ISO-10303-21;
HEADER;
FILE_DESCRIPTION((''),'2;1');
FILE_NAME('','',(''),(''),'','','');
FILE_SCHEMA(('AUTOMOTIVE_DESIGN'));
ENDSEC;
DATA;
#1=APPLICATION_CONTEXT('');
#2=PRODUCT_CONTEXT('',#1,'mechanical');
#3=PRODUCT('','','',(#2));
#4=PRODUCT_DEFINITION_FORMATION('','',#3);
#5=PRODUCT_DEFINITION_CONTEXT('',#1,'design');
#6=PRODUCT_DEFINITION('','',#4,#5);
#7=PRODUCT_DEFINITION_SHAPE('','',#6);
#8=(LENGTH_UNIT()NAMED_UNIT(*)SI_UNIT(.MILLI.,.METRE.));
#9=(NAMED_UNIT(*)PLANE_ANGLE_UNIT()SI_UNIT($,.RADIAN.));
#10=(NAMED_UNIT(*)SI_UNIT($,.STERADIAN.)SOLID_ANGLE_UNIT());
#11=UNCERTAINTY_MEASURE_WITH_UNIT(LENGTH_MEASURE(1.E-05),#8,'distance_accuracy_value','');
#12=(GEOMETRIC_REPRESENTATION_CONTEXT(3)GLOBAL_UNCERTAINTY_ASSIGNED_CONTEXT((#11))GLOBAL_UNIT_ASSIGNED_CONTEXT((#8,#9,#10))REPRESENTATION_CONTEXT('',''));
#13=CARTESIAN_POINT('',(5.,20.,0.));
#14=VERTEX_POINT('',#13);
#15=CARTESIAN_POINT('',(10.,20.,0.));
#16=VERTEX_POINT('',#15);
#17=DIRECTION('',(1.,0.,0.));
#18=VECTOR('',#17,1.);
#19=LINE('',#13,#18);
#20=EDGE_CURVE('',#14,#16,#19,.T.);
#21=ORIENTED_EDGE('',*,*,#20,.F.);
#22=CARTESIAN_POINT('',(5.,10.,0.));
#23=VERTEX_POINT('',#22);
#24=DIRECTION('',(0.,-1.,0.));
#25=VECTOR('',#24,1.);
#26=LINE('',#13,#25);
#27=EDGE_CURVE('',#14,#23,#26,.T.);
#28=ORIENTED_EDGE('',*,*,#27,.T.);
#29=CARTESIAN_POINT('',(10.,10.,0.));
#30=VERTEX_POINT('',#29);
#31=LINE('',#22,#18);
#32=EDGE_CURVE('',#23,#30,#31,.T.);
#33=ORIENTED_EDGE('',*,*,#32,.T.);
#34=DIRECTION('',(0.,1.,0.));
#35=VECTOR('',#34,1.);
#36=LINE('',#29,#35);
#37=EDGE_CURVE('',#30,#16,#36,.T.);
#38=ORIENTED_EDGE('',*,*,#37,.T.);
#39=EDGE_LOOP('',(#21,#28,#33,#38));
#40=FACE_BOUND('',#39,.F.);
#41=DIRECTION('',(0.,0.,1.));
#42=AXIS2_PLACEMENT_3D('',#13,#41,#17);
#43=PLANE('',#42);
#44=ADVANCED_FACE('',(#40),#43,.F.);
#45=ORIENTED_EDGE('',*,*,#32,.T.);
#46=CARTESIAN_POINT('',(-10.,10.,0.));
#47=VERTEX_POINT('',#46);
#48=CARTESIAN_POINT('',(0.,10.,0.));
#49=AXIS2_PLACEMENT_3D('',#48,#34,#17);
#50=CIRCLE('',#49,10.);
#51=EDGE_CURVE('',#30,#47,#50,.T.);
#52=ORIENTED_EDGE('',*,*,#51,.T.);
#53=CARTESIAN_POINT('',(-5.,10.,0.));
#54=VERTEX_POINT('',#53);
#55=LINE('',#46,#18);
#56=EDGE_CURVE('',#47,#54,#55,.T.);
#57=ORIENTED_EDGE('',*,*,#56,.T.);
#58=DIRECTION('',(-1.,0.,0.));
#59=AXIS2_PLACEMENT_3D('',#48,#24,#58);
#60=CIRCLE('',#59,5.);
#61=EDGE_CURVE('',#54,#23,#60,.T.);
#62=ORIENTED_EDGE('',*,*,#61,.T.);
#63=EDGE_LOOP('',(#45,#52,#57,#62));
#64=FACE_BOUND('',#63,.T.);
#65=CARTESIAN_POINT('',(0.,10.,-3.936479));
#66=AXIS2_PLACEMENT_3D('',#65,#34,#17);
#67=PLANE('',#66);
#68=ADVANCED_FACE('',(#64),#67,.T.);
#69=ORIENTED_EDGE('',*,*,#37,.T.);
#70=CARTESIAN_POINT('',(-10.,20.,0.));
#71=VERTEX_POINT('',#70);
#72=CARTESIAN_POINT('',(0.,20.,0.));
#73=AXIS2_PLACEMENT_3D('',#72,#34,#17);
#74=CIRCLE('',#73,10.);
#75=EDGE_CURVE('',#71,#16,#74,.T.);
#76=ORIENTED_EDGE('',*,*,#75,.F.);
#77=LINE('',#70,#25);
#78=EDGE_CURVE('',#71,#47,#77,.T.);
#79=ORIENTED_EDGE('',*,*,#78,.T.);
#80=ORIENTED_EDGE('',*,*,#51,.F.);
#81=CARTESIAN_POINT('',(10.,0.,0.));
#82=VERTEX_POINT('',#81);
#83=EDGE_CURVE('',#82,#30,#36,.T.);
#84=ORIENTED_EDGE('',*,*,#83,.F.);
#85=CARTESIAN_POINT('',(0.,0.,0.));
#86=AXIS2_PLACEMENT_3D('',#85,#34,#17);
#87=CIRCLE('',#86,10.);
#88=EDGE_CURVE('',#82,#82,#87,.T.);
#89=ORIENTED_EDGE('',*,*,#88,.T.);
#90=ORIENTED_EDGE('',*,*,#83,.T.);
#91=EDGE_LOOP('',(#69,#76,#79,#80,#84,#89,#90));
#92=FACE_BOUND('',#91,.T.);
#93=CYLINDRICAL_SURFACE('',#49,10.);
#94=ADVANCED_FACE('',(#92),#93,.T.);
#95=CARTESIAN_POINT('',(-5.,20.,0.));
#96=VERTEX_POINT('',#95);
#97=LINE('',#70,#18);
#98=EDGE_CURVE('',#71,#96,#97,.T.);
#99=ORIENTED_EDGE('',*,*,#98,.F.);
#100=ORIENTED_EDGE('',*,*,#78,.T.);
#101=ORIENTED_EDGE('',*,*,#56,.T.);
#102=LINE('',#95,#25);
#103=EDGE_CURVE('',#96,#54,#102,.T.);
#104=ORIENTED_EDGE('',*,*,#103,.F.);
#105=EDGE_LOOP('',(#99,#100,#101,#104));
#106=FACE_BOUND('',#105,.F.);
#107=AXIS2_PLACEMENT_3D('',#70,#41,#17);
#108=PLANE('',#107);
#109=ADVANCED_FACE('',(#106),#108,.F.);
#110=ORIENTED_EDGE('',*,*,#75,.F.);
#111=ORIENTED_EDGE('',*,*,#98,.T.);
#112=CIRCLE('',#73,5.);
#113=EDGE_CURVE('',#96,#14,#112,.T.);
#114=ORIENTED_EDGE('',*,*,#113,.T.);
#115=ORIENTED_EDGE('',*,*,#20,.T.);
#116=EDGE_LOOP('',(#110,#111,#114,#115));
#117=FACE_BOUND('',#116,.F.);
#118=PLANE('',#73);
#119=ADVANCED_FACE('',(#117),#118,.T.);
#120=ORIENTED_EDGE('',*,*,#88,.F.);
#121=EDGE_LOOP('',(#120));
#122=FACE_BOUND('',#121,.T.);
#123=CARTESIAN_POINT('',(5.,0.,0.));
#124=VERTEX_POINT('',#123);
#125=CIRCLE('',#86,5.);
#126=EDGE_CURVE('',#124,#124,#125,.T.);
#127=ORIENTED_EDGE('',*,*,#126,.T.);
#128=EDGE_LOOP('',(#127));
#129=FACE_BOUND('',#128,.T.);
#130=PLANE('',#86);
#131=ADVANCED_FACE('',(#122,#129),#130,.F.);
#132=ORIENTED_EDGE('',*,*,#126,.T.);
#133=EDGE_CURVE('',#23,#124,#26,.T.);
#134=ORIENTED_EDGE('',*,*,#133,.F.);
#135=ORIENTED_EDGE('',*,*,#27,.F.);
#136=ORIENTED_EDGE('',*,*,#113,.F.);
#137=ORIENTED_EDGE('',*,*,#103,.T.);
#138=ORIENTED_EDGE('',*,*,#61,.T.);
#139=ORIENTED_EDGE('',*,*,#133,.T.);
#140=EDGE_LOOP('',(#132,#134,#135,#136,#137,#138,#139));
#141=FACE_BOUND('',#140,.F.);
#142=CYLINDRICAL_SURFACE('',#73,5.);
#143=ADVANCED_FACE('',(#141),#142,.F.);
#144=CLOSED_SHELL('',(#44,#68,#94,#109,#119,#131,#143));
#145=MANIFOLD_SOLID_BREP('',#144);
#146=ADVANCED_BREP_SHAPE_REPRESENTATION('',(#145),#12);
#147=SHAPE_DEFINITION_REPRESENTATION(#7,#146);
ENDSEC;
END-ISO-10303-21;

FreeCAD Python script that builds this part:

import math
import FreeCAD as App
import Part
import Sketcher
from FreeCAD import Vector

doc = App.newDocument("Part")
body = doc.addObject("PartDesign::Body", "Body")

# Sketch on XY plane
sketch1 = body.newObject("Sketcher::SketchObject", "Sketch")
sketch1.AttachmentSupport = (doc.getObject("XY_Plane"), [""])
sketch1.MapMode = "FlatFace"
sketch1.addGeometry([
    Part.LineSegment(Vector(0, 20, 0), Vector(0, 0, 0)),
    Part.LineSegment(Vector(0, 0, 0), Vector(10, 0, 0)),
    Part.LineSegment(Vector(10, 0, 0), Vector(10, 20, 0)),
    Part.LineSegment(Vector(10, 20, 0), Vector(0, 20, 0)),
], False)
sketch1.addConstraint([
    Sketcher.Constraint("Coincident", 0, 2, 1, 1),
    Sketcher.Constraint("Coincident", 1, 2, 2, 1),
    Sketcher.Constraint("Coincident", 2, 2, 3, 1),
    Sketcher.Constraint("Coincident", 3, 2, 0, 1),
    Sketcher.Constraint("Vertical", 0),
    Sketcher.Constraint("Horizontal", 1),
    Sketcher.Constraint("Vertical", 2),
    Sketcher.Constraint("Horizontal", 3),
    Sketcher.Constraint("Coincident", 0, 2, -1, 1),
    Sketcher.Constraint("DistanceX", 1, 1, 1, 2, 10.0),
    Sketcher.Constraint("DistanceY", 0, 2, 0, 1, 20.0),
])
revolution = body.newObject("PartDesign::Revolution", "Revolution")
revolution.Profile = sketch1
revolution.ReferenceAxis = (sketch1, ["V_Axis"])
revolution.Angle = 360

# Sketch on XZ plane
sketch2 = body.newObject("Sketcher::SketchObject", "Sketch001")
sketch2.AttachmentSupport = (doc.getObject("XZ_Plane"), [""])
sketch2.MapMode = "FlatFace"
sketch2.AttachmentOffset = App.Placement(Vector(0, 0, -20), App.Rotation())
sketch2.addGeometry(Part.Circle(Vector(0, 0, 0), Vector(0, 0, 1), 5), False)
sketch2.addConstraint([
    Sketcher.Constraint("Coincident", 0, 3, -1, 1),
    Sketcher.Constraint("Diameter", 0, 10.0),
])
pocket1 = body.newObject("PartDesign::Pocket", "Pocket")
pocket1.Profile = sketch2
pocket1.Length = 20
pocket1.Reversed = True

# Sketch on XZ plane
sketch3 = body.newObject("Sketcher::SketchObject", "Sketch002")
sketch3.AttachmentSupport = (doc.getObject("XZ_Plane"), [""])
sketch3.MapMode = "FlatFace"
sketch3.AttachmentOffset = App.Placement(Vector(0, 0, -20), App.Rotation())
sketch3.addGeometry([
    Part.LineSegment(Vector(-10, 0, 0), Vector(-5, 0, 0)),
    Part.ArcOfCircle(Part.Circle(Vector(0, 0, 0), Vector(0, 0, 1), 5), math.radians(180), math.radians(360)),
    Part.LineSegment(Vector(5, 0, 0), Vector(10, 0, 0)),
    Part.ArcOfCircle(Part.Circle(Vector(0, 0, 0), Vector(0, 0, 1), 10), math.radians(180), math.radians(360)),
], False)
sketch3.addConstraint([
    Sketcher.Constraint("Coincident", 0, 2, 1, 1),
    Sketcher.Constraint("Coincident", 1, 2, 2, 1),
    Sketcher.Constraint("Coincident", 2, 2, 3, 2),
    Sketcher.Constraint("Coincident", 3, 1, 0, 1),
    Sketcher.Constraint("Horizontal", 0),
    Sketcher.Constraint("Horizontal", 2),
    Sketcher.Constraint("Coincident", 1, 3, -1, 1),
    Sketcher.Constraint("Coincident", 3, 3, -1, 1),
    Sketcher.Constraint("PointOnObject", 0, 2, -1),
    Sketcher.Constraint("PointOnObject", 1, 2, -1),
    Sketcher.Constraint("Radius", 1, 5.0),
    Sketcher.Constraint("Radius", 3, 10.0),
])
pocket2 = body.newObject("PartDesign::Pocket", "Pocket001")
pocket2.Profile = sketch3
pocket2.Length = 10
pocket2.Reversed = True

doc.recompute()
